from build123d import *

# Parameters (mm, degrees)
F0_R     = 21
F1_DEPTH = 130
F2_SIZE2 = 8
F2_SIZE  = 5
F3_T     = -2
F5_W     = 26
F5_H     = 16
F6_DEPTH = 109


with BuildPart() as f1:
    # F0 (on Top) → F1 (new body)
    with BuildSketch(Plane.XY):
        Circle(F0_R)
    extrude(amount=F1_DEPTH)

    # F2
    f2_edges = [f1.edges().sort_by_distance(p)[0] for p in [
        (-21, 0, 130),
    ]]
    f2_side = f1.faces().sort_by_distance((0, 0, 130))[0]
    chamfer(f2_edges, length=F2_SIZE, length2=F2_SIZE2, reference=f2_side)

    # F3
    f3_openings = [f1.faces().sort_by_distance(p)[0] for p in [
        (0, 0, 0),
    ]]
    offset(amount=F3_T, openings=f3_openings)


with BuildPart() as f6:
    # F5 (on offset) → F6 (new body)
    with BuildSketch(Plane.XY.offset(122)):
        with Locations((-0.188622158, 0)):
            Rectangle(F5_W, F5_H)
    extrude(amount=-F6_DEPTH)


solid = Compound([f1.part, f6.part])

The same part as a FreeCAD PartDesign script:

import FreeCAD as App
import Part
import Sketcher

V = App.Vector


def edges_at(feature, points):
    """Names of the edges that pass closest to the given points."""
    edges = feature.Shape.Edges
    near = lambda p: min(range(len(edges)), key=lambda i: edges[i].distToShape(Part.Vertex(*p))[0])
    return sorted({f"Edge{near(p) + 1}" for p in points})


def faces_at(feature, points):
    """Names of the faces that lie closest to the given points."""
    faces = feature.Shape.Faces
    near = lambda p: min(range(len(faces)), key=lambda i: faces[i].distToShape(Part.Vertex(*p))[0])
    return sorted({f"Face{near(p) + 1}" for p in points})


def add_polygon(sketch, points):
    """Adds a closed chain of lines whose ends are joined by coincident constraints."""
    first, n = sketch.GeometryCount, len(points)
    for a, b in zip(points, points[1:] + points[:1]):
        sketch.addGeometry(Part.LineSegment(App.Vector(*a, 0), App.Vector(*b, 0)), False)
    for i in range(n):
        sketch.addConstraint(Sketcher.Constraint("Coincident", first + i, 2, first + (i + 1) % n, 1))

doc = App.newDocument("Part")
body = doc.addObject("PartDesign::Body", "Body")

# Sketch on XY plane
sketch1 = body.newObject("Sketcher::SketchObject", "Sketch")
sketch1.AttachmentSupport = (doc.getObject("XY_Plane"), [""])
sketch1.MapMode = "FlatFace"
sketch1.addGeometry(Part.Circle(V(0, 0, 0), V(0, 0, 1), 21), False)
sketch1.addConstraint(Sketcher.Constraint("Coincident", 0, 3, -1, 1))
sketch1.addConstraint(Sketcher.Constraint("Diameter", 0, 42.0))
pad1 = body.newObject("PartDesign::Pad", "Pad")
pad1.Profile = sketch1
pad1.Length = 130
doc.recompute()

chamfer = body.newObject("PartDesign::Chamfer", "Chamfer")
chamfer.Base = (pad1, edges_at(pad1, [(-21, 0, 130)]))
chamfer.ChamferType = "Two distances"
chamfer.Size = 5
chamfer.Size2 = 8
chamfer.FlipDirection = True
doc.recompute()

thickness = body.newObject("PartDesign::Thickness", "Thickness")
thickness.Base = (chamfer, faces_at(chamfer, [(0, 0, 0)]))
thickness.Value = 2
thickness.Reversed = True
thickness.Join = "Arc"
body2 = doc.addObject("PartDesign::Body", "Body001")

# Sketch on XY plane
sketch2 = body2.newObject("Sketcher::SketchObject", "Sketch001")
sketch2.AttachmentSupport = (doc.getObject("XY_Plane001"), [""])
sketch2.MapMode = "FlatFace"
sketch2.AttachmentOffset = App.Placement(V(0, 0, 122), App.Rotation())
add_polygon(sketch2, [(-13.188622, 8), (-13.188622, -8), (12.811378, -8), (12.811378, 8)])  # lines 0-3
sketch2.addConstraint(Sketcher.Constraint("Vertical", 0))
sketch2.addConstraint(Sketcher.Constraint("Horizontal", 1))
sketch2.addConstraint(Sketcher.Constraint("Vertical", 2))
sketch2.addConstraint(Sketcher.Constraint("Horizontal", 3))
sketch2.addConstraint(Sketcher.Constraint("DistanceX", 1, 1, 1, 2, 26.0))
sketch2.addConstraint(Sketcher.Constraint("DistanceY", 0, 2, 0, 1, 16.0))
sketch2.addConstraint(Sketcher.Constraint("DistanceY", 0, 2, -1, 1, 8.0))
sketch2.addConstraint(Sketcher.Constraint("DistanceX", 0, 2, -1, 1, 13.188622))
pad2 = body2.newObject("PartDesign::Pad", "Pad001")
pad2.Profile = sketch2
pad2.Length = 109
pad2.Reversed = True

doc.recompute()
